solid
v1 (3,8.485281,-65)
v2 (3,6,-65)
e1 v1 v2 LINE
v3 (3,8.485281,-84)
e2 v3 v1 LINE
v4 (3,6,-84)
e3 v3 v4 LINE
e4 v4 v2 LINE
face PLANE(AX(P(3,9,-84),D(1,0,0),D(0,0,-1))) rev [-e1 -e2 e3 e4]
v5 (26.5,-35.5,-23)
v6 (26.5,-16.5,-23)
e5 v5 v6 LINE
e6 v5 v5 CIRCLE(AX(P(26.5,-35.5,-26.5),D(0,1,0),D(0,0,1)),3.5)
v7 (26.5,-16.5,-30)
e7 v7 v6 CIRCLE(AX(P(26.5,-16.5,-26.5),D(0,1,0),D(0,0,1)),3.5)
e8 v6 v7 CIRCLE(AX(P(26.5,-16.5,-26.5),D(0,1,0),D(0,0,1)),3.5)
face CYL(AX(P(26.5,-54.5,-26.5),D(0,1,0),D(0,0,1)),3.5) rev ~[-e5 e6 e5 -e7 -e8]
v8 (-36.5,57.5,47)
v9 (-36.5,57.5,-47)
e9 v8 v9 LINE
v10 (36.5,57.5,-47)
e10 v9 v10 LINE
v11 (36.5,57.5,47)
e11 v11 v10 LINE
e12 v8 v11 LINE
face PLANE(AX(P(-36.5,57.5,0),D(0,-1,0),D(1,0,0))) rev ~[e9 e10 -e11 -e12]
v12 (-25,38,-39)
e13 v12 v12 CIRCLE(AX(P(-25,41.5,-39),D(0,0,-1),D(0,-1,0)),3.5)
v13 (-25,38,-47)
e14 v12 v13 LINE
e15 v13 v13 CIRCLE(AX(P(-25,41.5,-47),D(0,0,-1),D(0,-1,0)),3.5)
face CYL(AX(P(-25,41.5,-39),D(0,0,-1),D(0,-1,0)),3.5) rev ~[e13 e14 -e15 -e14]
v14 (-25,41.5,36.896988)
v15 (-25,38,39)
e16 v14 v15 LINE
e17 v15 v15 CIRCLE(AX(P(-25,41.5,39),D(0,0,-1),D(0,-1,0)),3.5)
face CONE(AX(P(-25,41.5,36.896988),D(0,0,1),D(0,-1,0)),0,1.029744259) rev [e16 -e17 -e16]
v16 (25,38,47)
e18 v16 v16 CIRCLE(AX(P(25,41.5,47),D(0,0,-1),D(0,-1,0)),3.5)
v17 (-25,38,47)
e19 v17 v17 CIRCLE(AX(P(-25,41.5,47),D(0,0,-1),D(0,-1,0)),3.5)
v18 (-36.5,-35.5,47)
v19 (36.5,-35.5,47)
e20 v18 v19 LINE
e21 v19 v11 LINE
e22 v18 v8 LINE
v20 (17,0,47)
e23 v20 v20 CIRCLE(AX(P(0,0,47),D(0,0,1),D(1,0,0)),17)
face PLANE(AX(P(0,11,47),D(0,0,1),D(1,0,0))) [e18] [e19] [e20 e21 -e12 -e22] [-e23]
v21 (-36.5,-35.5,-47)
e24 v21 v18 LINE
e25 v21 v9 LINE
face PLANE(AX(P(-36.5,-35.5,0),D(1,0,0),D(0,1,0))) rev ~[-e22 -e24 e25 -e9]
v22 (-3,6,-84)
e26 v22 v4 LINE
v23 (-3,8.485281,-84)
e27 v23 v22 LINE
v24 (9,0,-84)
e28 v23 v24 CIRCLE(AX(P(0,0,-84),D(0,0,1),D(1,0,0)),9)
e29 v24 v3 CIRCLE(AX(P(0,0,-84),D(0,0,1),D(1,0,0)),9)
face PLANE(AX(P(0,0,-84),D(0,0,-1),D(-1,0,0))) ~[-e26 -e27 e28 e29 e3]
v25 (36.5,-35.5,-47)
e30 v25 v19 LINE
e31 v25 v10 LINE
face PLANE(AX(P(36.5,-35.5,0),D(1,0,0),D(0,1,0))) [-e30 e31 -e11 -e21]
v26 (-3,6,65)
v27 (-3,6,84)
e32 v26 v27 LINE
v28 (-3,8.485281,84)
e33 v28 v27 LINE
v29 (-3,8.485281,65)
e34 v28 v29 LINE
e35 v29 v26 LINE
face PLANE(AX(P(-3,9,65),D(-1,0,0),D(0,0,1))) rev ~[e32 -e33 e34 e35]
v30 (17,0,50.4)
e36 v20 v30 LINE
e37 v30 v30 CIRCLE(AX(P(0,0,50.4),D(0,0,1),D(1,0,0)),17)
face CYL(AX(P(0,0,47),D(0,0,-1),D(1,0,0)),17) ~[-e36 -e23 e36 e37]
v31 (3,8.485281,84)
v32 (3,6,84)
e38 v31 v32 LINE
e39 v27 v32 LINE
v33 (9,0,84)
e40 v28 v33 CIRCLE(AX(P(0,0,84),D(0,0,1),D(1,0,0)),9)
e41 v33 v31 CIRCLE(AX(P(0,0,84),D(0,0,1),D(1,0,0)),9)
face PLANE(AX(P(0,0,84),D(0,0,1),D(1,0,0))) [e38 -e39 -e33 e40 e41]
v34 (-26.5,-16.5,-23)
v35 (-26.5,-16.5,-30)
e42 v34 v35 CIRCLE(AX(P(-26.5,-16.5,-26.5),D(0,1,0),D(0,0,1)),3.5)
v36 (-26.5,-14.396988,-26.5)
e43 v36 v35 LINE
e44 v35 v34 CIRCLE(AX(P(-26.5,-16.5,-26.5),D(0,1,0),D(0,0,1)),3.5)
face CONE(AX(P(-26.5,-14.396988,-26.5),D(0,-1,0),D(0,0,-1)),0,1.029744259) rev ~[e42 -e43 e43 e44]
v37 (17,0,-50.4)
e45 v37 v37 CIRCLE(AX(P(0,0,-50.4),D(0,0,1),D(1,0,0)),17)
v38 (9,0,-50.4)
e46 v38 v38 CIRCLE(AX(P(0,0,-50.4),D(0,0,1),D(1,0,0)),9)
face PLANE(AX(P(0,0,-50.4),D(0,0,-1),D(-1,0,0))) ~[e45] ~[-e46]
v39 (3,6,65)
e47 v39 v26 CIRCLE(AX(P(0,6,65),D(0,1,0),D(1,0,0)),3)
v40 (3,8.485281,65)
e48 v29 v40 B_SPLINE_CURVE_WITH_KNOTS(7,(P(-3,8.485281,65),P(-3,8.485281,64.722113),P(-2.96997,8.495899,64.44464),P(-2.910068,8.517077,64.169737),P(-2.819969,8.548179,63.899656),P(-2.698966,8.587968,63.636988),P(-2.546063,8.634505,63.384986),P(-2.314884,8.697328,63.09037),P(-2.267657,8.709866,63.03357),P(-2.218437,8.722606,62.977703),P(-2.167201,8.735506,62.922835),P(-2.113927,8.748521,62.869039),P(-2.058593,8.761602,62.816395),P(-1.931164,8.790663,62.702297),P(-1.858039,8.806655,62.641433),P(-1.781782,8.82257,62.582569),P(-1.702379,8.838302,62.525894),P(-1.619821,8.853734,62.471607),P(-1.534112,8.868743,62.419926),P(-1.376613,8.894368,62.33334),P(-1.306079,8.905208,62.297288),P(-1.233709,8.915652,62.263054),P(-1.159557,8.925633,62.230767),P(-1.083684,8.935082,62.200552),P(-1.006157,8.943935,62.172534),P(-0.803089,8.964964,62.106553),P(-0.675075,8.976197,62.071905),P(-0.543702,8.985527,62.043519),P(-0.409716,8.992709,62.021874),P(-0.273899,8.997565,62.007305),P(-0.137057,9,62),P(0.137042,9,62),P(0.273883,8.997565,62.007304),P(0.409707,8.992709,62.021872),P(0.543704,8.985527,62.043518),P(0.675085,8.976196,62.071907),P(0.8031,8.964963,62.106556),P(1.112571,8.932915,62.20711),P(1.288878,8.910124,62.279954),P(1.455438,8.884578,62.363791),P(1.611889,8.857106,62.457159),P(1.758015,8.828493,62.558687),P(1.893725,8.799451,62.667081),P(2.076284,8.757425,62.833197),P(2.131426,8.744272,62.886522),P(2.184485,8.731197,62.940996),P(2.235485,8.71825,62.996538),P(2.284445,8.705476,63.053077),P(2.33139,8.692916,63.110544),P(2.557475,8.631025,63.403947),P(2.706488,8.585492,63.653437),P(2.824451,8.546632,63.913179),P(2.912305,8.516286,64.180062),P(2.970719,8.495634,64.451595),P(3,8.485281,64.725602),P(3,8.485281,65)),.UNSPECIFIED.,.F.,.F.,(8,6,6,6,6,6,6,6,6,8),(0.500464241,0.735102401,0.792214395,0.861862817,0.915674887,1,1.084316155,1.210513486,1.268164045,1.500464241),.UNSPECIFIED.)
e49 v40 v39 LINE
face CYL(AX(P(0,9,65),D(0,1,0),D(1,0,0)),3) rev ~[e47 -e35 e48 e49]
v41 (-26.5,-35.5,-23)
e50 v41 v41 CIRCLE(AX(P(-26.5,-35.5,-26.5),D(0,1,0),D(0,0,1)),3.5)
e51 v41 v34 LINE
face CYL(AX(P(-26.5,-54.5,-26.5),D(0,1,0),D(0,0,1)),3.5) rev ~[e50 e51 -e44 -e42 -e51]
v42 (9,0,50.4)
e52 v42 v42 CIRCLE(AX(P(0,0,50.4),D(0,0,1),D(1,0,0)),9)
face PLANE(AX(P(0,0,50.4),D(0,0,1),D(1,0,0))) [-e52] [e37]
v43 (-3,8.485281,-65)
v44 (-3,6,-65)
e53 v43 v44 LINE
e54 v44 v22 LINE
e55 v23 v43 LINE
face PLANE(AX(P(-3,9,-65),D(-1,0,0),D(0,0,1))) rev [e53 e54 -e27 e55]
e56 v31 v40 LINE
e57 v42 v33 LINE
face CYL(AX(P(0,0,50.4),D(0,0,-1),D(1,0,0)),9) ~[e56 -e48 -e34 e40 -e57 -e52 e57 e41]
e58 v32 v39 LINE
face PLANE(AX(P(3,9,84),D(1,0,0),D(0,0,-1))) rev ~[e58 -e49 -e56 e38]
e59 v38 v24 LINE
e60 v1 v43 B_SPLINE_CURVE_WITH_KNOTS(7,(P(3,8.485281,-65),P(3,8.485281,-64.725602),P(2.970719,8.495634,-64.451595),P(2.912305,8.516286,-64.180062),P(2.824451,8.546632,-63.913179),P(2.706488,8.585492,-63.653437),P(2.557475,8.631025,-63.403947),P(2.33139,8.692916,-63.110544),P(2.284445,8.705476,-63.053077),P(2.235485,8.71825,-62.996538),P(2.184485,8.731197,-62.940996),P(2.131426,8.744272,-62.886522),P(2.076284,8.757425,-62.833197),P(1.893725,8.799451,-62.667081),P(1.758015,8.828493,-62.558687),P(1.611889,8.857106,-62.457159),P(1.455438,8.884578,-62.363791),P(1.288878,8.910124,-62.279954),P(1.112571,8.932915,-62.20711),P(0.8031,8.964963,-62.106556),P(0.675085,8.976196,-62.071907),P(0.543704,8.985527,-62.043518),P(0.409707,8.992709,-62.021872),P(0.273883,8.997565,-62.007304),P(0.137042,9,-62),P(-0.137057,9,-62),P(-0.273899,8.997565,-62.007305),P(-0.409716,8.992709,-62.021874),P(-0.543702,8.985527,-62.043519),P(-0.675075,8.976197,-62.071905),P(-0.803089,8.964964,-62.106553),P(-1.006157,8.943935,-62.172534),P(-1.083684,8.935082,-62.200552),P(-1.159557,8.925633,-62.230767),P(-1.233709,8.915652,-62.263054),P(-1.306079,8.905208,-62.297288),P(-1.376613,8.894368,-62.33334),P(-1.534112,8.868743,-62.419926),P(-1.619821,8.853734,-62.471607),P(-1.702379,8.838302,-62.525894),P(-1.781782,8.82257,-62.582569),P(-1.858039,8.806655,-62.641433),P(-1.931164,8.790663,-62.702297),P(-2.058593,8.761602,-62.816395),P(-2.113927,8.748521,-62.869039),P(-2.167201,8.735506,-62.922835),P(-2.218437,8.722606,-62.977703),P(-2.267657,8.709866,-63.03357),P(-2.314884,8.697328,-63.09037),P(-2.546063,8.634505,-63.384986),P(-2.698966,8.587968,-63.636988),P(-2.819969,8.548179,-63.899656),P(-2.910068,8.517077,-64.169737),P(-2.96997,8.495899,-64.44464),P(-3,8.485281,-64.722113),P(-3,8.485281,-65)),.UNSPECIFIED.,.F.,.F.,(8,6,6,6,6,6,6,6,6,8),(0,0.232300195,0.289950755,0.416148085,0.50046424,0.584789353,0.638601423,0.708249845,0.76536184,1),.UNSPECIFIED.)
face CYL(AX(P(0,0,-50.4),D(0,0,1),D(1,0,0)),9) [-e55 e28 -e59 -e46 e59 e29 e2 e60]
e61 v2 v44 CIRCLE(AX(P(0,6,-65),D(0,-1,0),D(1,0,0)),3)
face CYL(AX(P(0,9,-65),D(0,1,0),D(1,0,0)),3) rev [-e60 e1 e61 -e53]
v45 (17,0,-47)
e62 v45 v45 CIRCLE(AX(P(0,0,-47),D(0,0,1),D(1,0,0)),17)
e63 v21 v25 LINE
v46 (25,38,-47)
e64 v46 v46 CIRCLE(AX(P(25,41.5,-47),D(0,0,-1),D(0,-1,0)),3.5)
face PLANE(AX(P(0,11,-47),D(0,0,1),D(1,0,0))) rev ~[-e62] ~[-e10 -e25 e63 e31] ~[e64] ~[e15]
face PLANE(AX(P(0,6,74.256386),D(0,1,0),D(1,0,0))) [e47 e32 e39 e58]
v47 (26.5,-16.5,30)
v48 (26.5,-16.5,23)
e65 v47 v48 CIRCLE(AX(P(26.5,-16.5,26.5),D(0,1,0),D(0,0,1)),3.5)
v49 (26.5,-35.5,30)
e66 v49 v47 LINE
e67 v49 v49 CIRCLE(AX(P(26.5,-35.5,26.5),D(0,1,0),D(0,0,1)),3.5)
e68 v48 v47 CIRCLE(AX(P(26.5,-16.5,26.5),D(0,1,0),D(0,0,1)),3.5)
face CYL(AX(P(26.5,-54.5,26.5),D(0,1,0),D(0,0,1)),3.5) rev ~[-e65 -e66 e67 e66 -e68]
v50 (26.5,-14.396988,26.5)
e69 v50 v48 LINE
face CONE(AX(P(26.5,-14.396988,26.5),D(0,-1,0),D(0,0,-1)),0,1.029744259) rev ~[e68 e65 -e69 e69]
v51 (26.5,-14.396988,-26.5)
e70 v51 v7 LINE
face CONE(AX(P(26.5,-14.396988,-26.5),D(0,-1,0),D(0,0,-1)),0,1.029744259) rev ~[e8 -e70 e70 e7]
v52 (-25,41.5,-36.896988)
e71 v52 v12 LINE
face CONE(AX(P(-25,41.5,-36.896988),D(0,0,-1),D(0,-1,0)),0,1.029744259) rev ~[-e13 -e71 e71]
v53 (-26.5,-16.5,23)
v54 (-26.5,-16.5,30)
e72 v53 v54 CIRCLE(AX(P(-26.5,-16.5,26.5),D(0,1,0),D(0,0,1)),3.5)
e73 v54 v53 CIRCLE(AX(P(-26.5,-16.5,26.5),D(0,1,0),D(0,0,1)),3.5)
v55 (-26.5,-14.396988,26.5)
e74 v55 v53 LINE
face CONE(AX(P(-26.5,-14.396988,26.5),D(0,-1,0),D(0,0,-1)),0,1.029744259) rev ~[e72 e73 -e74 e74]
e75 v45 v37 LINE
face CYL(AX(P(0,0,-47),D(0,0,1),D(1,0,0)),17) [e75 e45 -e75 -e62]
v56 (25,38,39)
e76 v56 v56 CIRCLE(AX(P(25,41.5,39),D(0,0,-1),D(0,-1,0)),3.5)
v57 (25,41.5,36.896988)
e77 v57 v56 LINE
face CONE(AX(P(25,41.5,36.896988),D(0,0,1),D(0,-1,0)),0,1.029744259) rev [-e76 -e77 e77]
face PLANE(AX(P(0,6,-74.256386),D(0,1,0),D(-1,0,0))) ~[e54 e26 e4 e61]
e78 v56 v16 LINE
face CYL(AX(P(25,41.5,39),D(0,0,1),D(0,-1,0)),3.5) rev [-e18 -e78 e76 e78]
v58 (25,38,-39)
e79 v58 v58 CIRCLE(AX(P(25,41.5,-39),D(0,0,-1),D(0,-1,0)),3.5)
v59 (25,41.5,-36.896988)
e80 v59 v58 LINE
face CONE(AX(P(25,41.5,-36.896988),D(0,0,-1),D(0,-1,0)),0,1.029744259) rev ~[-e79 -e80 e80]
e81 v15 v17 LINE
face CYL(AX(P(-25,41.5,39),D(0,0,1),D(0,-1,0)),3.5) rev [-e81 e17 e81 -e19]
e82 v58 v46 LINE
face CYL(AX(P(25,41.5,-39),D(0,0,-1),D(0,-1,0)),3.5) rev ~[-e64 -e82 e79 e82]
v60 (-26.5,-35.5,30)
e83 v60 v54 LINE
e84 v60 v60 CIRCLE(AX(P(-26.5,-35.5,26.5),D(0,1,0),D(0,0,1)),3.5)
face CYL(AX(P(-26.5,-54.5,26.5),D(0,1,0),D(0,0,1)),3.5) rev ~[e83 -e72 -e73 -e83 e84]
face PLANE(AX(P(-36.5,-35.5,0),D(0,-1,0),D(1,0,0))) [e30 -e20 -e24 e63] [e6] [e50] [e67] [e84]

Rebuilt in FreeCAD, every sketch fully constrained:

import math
import FreeCAD as App
import Part
import Sketcher

V = App.Vector
Q = App.Units.Quantity

doc = App.newDocument("Part")
body = doc.addObject("PartDesign::Body", "Body")

# Sketch on XY plane
sketch1 = body.newObject("Sketcher::SketchObject", "Sketch")
sketch1.AttachmentSupport = (doc.getObject("XY_Plane"), [""])
sketch1.MapMode = "FlatFace"
sketch1.addGeometry([
    Part.LineSegment(V(-36.5, 57.5, 0), V(-36.5, -35.5, 0)),
    Part.LineSegment(V(-36.5, -35.5, 0), V(36.5, -35.5, 0)),
    Part.LineSegment(V(36.5, -35.5, 0), V(36.5, 57.5, 0)),
    Part.LineSegment(V(36.5, 57.5, 0), V(-36.5, 57.5, 0)),
], False)
sketch1.addConstraint([
    Sketcher.Constraint("Coincident", 0, 2, 1, 1),
    Sketcher.Constraint("Coincident", 1, 2, 2, 1),
    Sketcher.Constraint("Coincident", 2, 2, 3, 1),
    Sketcher.Constraint("Coincident", 3, 2, 0, 1),
    Sketcher.Constraint("Vertical", 0),
    Sketcher.Constraint("Horizontal", 1),
    Sketcher.Constraint("Vertical", 2),
    Sketcher.Constraint("Horizontal", 3),
    Sketcher.Constraint("DistanceX", 1, 1, 1, 2, 73.0),
    Sketcher.Constraint("DistanceY", 0, 2, 0, 1, 93.0),
    Sketcher.Constraint("DistanceX", 0, 2, -1, 1, 36.5),
    Sketcher.Constraint("DistanceY", 0, 2, -1, 1, 35.5),
])
pad1 = body.newObject("PartDesign::Pad", "Pad")
pad1.Profile = sketch1
pad1.Length = 94
pad1.Midplane = True

# Sketch on XY plane
sketch2 = body.newObject("Sketcher::SketchObject", "Sketch001")
sketch2.AttachmentSupport = (doc.getObject("XY_Plane"), [""])
sketch2.MapMode = "FlatFace"
sketch2.AttachmentOffset = App.Placement(V(0, 0, 47), App.Rotation())
sketch2.addGeometry(Part.Circle(V(0, 0, 0), V(0, 0, 1), 17), False)
sketch2.addConstraint([
    Sketcher.Constraint("Coincident", 0, 3, -1, 1),
    Sketcher.Constraint("Diameter", 0, 34.0),
])
pad2 = body.newObject("PartDesign::Pad", "Pad001")
pad2.Profile = sketch2
pad2.Length = 3.4

# Sketch on XY plane
sketch3 = body.newObject("Sketcher::SketchObject", "Sketch002")
sketch3.AttachmentSupport = (doc.getObject("XY_Plane"), [""])
sketch3.MapMode = "FlatFace"
sketch3.AttachmentOffset = App.Placement(V(0, 0, 50.4), App.Rotation())
sketch3.addGeometry(Part.Circle(V(0, 0, 0), V(0, 0, 1), 9), False)
sketch3.addConstraint([
    Sketcher.Constraint("Coincident", 0, 3, -1, 1),
    Sketcher.Constraint("Diameter", 0, 18.0),
])
pad3 = body.newObject("PartDesign::Pad", "Pad002")
pad3.Profile = sketch3
pad3.Length = 33.6

# Sketch on XZ plane
sketch4 = body.newObject("Sketcher::SketchObject", "Sketch003")
sketch4.AttachmentSupport = (doc.getObject("XZ_Plane"), [""])
sketch4.MapMode = "FlatFace"
sketch4.AttachmentOffset = App.Placement(V(0, 0, -9), App.Rotation())
sketch4.addGeometry([
    Part.LineSegment(V(-3, 65, 0), V(-3, 84, 0)),
    Part.LineSegment(V(-3, 84, 0), V(3, 84, 0)),
    Part.LineSegment(V(3, 84, 0), V(3, 65, 0)),
    Part.ArcOfCircle(Part.Circle(V(0, 65, 0), V(0, 0, 1), 3), math.radians(180), math.radians(360)),
], False)
sketch4.addConstraint([
    Sketcher.Constraint("Coincident", 0, 2, 1, 1),
    Sketcher.Constraint("Coincident", 1, 2, 2, 1),
    Sketcher.Constraint("Tangent", 2, 2, 3, 2),
    Sketcher.Constraint("Tangent", 3, 1, 0, 1),
    Sketcher.Constraint("Vertical", 0),
    Sketcher.Constraint("Horizontal", 1),
    Sketcher.Constraint("Vertical", 2),
    Sketcher.Constraint("PointOnObject", 3, 3, -2),
    Sketcher.Constraint("Radius", 3, 3.0),
    Sketcher.Constraint("DistanceY", 0, 1, 0, 2, 19.0),
    Sketcher.Constraint("DistanceY", -1, 1, 3, 3, 65.0),
])
pocket1 = body.newObject("PartDesign::Pocket", "Pocket")
pocket1.Profile = sketch4
pocket1.Length = 3
pocket1.Reversed = True

# Sketch on YZ plane
sketch5 = body.newObject("Sketcher::SketchObject", "Sketch004")
sketch5.AttachmentSupport = (doc.getObject("YZ_Plane"), [""])
sketch5.MapMode = "FlatFace"
sketch5.AttachmentOffset = App.Placement(V(0, 0, -25), App.Rotation())
sketch5.addGeometry([
    Part.LineSegment(V(41.5, 36.896988, 0), V(41.5, 47, 0)),
    Part.LineSegment(V(41.5, 47, 0), V(38, 47, 0)),
    Part.LineSegment(V(38, 47, 0), V(38, 39, 0)),
    Part.LineSegment(V(38, 39, 0), V(41.5, 36.896988, 0)),
], False)
sketch5.addGeometry(Part.LineSegment(V(41.5, 47, 0), V(41.5, 36.896988, 0)), True)  # axis
sketch5.addConstraint([
    Sketcher.Constraint("Coincident", 0, 2, 1, 1),
    Sketcher.Constraint("Coincident", 1, 2, 2, 1),
    Sketcher.Constraint("Coincident", 2, 2, 3, 1),
    Sketcher.Constraint("Coincident", 3, 2, 0, 1),
    Sketcher.Constraint("Vertical", 0),
    Sketcher.Constraint("Horizontal", 1),
    Sketcher.Constraint("Vertical", 2),
    Sketcher.Constraint("Vertical", 4),
    Sketcher.Constraint("Coincident", 4, 1, 0, 2),
    Sketcher.Constraint("Equal", 0, 4),
    Sketcher.Constraint("DistanceY", 2, 2, 2, 1, 8.0),
    Sketcher.Constraint("Angle", 3, Q("-31 deg")),
    Sketcher.Constraint("DistanceX", 1, 2, 1, 1, 3.5),
    Sketcher.Constraint("DistanceY", -1, 1, 0, 2, 47.0),
    Sketcher.Constraint("DistanceX", -1, 1, 1, 2, 38.0),
])
groove = body.newObject("PartDesign::Groove", "Groove")
groove.Profile = sketch5
groove.ReferenceAxis = (sketch5, ["Axis0"])
groove.Angle = 360
doc.recompute()

linearpattern = body.newObject("PartDesign::LinearPattern", "LinearPattern")
linearpattern.Originals = [groove]
linearpattern.Direction = (doc.getObject("X_Axis"), [""])
linearpattern.Mode = "offset"
linearpattern.Offset = 50
linearpattern.Occurrences = 2
body.Tip = linearpattern
doc.recompute()

mirrored = body.newObject("PartDesign::Mirrored", "Mirrored")
mirrored.Originals = [pad2, pad3, pocket1, groove]
mirrored.MirrorPlane = (doc.getObject("XY_Plane"), [""])
body.Tip = mirrored

# Sketch on YZ plane
sketch6 = body.newObject("Sketcher::SketchObject", "Sketch005")
sketch6.AttachmentSupport = (doc.getObject("YZ_Plane"), [""])
sketch6.MapMode = "FlatFace"
sketch6.AttachmentOffset = App.Placement(V(0, 0, 25), App.Rotation())
sketch6.addGeometry([
    Part.LineSegment(V(41.5, -47, 0), V(41.5, -36.896988, 0)),
    Part.LineSegment(V(41.5, -36.896988, 0), V(38, -39, 0)),
    Part.LineSegment(V(38, -39, 0), V(38, -47, 0)),
    Part.LineSegment(V(38, -47, 0), V(41.5, -47, 0)),
], False)
sketch6.addGeometry(Part.LineSegment(V(41.5, -36.896988, 0), V(41.5, -47, 0)), True)  # axis
sketch6.addConstraint([
    Sketcher.Constraint("Coincident", 0, 2, 1, 1),
    Sketcher.Constraint("Coincident", 1, 2, 2, 1),
    Sketcher.Constraint("Coincident", 2, 2, 3, 1),
    Sketcher.Constraint("Coincident", 3, 2, 0, 1),
    Sketcher.Constraint("Vertical", 0),
    Sketcher.Constraint("Vertical", 2),
    Sketcher.Constraint("Horizontal", 3),
    Sketcher.Constraint("Vertical", 4),
    Sketcher.Constraint("Coincident", 4, 1, 0, 2),
    Sketcher.Constraint("Horizontal", 2, 2, 4, 2),
    Sketcher.Constraint("DistanceY", 2, 2, 2, 1, 8.0),
    Sketcher.Constraint("Angle", 1, Q("-149 deg")),
    Sketcher.Constraint("DistanceX", 3, 1, 3, 2, 3.5),
    Sketcher.Constraint("DistanceX", -1, 1, 1, 2, 38.0),
    Sketcher.Constraint("DistanceY", 1, 2, -1, 1, 39.0),
])
groove2 = body.newObject("PartDesign::Groove", "Groove001")
groove2.Profile = sketch6
groove2.ReferenceAxis = (sketch6, ["Axis0"])
groove2.Angle = 360

# Sketch on XZ plane
sketch7 = body.newObject("Sketcher::SketchObject", "Sketch006")
sketch7.AttachmentSupport = (doc.getObject("XZ_Plane"), [""])
sketch7.MapMode = "FlatFace"
sketch7.AttachmentOffset = App.Placement(V(0, 0, 35.5), App.Rotation())
sketch7.addGeometry([
    Part.Circle(V(26.5, 26.5, 0), V(0, 0, 1), 3.5),
    Part.Circle(V(26.5, -26.5, 0), V(0, 0, 1), 3.5),
    Part.Circle(V(-26.5, -26.5, 0), V(0, 0, 1), 3.5),
    Part.Circle(V(-26.5, 26.5, 0), V(0, 0, 1), 3.5),
], False)
sketch7.addConstraint([
    Sketcher.Constraint("Equal", 0, 1),
    Sketcher.Constraint("Equal", 1, 2),
    Sketcher.Constraint("Equal", 2, 3),
    Sketcher.Constraint("Symmetric", 0, 3, 2, 3, -1, 1),
    Sketcher.Constraint("Symmetric", 1, 3, 3, 3, -1, 1),
    Sketcher.Constraint("Symmetric", 1, 3, 2, 3, -2),
    Sketcher.Constraint("Diameter", 0, 7.0),
    Sketcher.Constraint("DistanceY", 1, 3, 0, 3, 53.0),
    Sketcher.Constraint("DistanceX", 2, 3, 1, 3, 53.0),
])
doc.recompute()
hole = body.newObject("PartDesign::Hole", "Hole")
hole.Profile = sketch7
hole.ThreadType = "None"
hole.Diameter = 7
hole.DepthType = "Dimension"
hole.Depth = 19
hole.DrillPoint = "Angled"
hole.DrillPointAngle = 118

doc.recompute()
